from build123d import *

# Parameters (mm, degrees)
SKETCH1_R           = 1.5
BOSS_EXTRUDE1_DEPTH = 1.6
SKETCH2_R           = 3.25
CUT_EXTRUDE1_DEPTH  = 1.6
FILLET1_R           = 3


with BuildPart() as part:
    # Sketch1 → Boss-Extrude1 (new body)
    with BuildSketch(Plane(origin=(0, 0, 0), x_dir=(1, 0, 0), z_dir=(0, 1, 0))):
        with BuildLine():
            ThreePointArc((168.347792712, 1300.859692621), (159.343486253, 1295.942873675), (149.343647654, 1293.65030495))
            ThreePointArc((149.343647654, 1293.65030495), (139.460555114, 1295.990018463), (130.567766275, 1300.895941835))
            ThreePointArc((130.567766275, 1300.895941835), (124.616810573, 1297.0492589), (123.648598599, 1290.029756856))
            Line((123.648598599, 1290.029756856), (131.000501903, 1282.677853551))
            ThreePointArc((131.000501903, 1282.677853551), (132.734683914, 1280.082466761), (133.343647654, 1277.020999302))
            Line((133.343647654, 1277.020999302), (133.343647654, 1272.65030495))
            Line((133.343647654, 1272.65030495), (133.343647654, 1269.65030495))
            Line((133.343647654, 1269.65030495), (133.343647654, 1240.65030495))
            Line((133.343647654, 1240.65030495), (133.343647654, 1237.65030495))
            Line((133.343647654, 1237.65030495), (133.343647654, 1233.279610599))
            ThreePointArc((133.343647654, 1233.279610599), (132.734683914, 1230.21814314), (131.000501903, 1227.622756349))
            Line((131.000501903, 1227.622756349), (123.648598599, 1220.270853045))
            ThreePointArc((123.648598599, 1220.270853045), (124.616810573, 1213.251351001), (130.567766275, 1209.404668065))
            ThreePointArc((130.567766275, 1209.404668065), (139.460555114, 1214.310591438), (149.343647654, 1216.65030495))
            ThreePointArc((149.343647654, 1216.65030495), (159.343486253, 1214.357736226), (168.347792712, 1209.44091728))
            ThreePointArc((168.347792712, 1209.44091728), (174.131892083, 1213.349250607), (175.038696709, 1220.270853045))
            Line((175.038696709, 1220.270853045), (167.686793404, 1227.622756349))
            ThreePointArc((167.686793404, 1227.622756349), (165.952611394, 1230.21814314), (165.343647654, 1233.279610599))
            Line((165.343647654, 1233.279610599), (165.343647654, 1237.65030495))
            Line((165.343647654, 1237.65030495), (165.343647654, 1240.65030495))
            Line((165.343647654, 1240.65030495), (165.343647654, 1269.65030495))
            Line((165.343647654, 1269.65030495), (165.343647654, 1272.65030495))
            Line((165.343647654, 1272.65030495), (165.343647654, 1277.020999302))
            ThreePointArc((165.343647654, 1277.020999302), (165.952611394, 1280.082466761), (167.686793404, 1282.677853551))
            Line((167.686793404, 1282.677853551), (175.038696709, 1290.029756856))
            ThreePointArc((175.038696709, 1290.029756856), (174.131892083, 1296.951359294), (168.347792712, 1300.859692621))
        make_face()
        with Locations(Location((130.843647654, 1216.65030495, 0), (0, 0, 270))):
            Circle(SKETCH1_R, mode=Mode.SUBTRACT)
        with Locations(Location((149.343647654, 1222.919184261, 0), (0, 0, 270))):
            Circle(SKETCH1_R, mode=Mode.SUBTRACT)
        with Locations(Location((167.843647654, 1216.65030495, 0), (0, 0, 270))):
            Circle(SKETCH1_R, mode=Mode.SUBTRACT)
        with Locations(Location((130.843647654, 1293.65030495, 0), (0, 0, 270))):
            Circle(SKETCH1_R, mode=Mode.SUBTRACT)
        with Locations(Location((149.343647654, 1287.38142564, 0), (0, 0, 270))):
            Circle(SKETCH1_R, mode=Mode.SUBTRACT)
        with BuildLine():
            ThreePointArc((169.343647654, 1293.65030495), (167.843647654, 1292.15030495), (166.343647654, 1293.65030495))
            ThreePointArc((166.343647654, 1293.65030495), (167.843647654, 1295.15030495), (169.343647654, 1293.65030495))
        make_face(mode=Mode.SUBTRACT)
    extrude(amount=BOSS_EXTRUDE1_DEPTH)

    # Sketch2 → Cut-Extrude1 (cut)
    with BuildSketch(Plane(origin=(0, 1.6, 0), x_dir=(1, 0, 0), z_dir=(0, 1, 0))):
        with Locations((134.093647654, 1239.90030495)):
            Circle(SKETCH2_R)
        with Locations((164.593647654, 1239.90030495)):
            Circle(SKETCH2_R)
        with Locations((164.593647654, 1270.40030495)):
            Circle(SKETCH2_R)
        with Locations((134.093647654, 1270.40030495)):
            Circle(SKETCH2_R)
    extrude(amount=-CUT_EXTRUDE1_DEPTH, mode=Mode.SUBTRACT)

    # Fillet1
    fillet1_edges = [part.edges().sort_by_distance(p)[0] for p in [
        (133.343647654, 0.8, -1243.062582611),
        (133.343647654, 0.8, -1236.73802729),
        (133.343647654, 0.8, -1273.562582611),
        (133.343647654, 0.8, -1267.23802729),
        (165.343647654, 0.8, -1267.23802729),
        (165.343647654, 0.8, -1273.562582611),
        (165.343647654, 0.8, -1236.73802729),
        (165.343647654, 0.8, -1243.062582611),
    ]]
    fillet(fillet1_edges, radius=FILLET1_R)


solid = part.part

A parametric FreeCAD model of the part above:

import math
import FreeCAD as App
import Part
import Sketcher

V = App.Vector
Q = App.Units.Quantity


def edges_at(feature, points):
    """Names of the edges that pass closest to the given points."""
    edges = feature.Shape.Edges
    near = lambda p: min(range(len(edges)), key=lambda i: edges[i].distToShape(Part.Vertex(*p))[0])
    return sorted({f"Edge{near(p) + 1}" for p in points})

doc = App.newDocument("Part")
body = doc.addObject("PartDesign::Body", "Body")

# Sketch on XZ plane
sketch1 = body.newObject("Sketcher::SketchObject", "Sketch")
sketch1.AttachmentSupport = (doc.getObject("XZ_Plane"), [""])
sketch1.MapMode = "FlatFace"
sketch1.addGeometry([
    Part.ArcOfCircle(Part.Circle(V(146, -1331, 0), V(0, 0, 1), 37.5), math.radians(54), math.radians(85)),  # 0
    Part.ArcOfCircle(Part.Circle(V(153, -1331, 0), V(0, 0, 1), 37.5), math.radians(96), math.radians(127)),  # 1
    Part.ArcOfCircle(Part.Circle(V(131.8, -1292.5, 0), V(0, 0, 1), 8.5), math.radians(163), math.radians(262)),  # 2
    Part.LineSegment(V(123.6, -1290, 0), V(131, -1282.7, 0)),  # 3
    Part.ArcOfCircle(Part.Circle(V(125.3, -1277, 0), V(0, 0, 1), 8), math.radians(-45), math.radians(0)),  # 4
    Part.LineSegment(V(133.3, -1277, 0), V(133.3, -1233.3, 0)),  # 5
    Part.ArcOfCircle(Part.Circle(V(125.3, -1233.3, 0), V(0, 0, 1), 8), math.radians(0), math.radians(45)),  # 6
    Part.LineSegment(V(131, -1227.6, 0), V(123.6, -1220.3, 0)),  # 7
    Part.ArcOfCircle(Part.Circle(V(131.8, -1217.8, 0), V(0, 0, 1), 8.5), math.radians(98), math.radians(197)),  # 8
    Part.ArcOfCircle(Part.Circle(V(153, -1179.3, 0), V(0, 0, 1), 37.5), math.radians(-127), math.radians(-96)),  # 9
    Part.ArcOfCircle(Part.Circle(V(146, -1179.3, 0), V(0, 0, 1), 37.5), math.radians(-85), math.radians(-54)),  # 10
    Part.ArcOfCircle(Part.Circle(V(166.9, -1217.8, 0), V(0, 0, 1), 8.5), math.radians(-17), math.radians(80)),  # 11
    Part.LineSegment(V(175, -1220.3, 0), V(167.7, -1227.6, 0)),  # 12
    Part.ArcOfCircle(Part.Circle(V(173.3, -1233.3, 0), V(0, 0, 1), 8), math.radians(135), math.radians(180)),  # 13
    Part.LineSegment(V(165.3, -1233.3, 0), V(165.3, -1277, 0)),  # 14
    Part.ArcOfCircle(Part.Circle(V(173.3, -1277, 0), V(0, 0, 1), 8), math.radians(180), math.radians(225)),  # 15
    Part.LineSegment(V(167.7, -1282.7, 0), V(175, -1290, 0)),  # 16
    Part.ArcOfCircle(Part.Circle(V(166.9, -1292.5, 0), V(0, 0, 1), 8.5), math.radians(-80), math.radians(17)),  # 17
    Part.Circle(V(130.8, -1216.7, 0), V(0, 0, 1), 1.5),  # 18
    Part.Circle(V(149.3, -1222.9, 0), V(0, 0, 1), 1.5),  # 19
    Part.Circle(V(167.8, -1216.7, 0), V(0, 0, 1), 1.5),  # 20
    Part.Circle(V(130.8, -1293.7, 0), V(0, 0, 1), 1.5),  # 21
    Part.Circle(V(149.3, -1287.4, 0), V(0, 0, 1), 1.5),  # 22
    Part.Circle(V(167.8, -1293.7, 0), V(0, 0, 1), 1.5),  # 23
], False)
sketch1.addConstraint([
    Sketcher.Constraint("Coincident", 0, 2, 1, 1),
    Sketcher.Constraint("Coincident", 1, 2, 2, 2),
    Sketcher.Constraint("Coincident", 2, 1, 3, 1),
    Sketcher.Constraint("Tangent", 3, 2, 4, 1),
    Sketcher.Constraint("Tangent", 4, 2, 5, 1),
    Sketcher.Constraint("Tangent", 5, 2, 6, 1),
    Sketcher.Constraint("Tangent", 6, 2, 7, 1),
    Sketcher.Constraint("Coincident", 7, 2, 8, 2),
    Sketcher.Constraint("Coincident", 8, 1, 9, 1),
    Sketcher.Constraint("Coincident", 9, 2, 10, 1),
    Sketcher.Constraint("Coincident", 10, 2, 11, 2),
    Sketcher.Constraint("Coincident", 11, 1, 12, 1),
    Sketcher.Constraint("Tangent", 12, 2, 13, 1),
    Sketcher.Constraint("Tangent", 13, 2, 14, 1),
    Sketcher.Constraint("Tangent", 14, 2, 15, 1),
    Sketcher.Constraint("Tangent", 15, 2, 16, 1),
    Sketcher.Constraint("Coincident", 16, 2, 17, 2),
    Sketcher.Constraint("Coincident", 17, 1, 0, 1),
    Sketcher.Constraint("Vertical", 5),
    Sketcher.Constraint("Vertical", 14),
    Sketcher.Constraint("Equal", 0, 1),
    Sketcher.Constraint("Equal", 4, 6),
    Sketcher.Constraint("Equal", 2, 8),
    Sketcher.Constraint("Equal", 1, 9),
    Sketcher.Constraint("Equal", 9, 10),
    Sketcher.Constraint("Equal", 8, 11),
    Sketcher.Constraint("Equal", 6, 13),
    Sketcher.Constraint("Equal", 13, 15),
    Sketcher.Constraint("Equal", 11, 17),
    Sketcher.Constraint("Equal", 18, 19),
    Sketcher.Constraint("Equal", 19, 20),
    Sketcher.Constraint("Equal", 20, 21),
    Sketcher.Constraint("Equal", 21, 22),
    Sketcher.Constraint("Equal", 22, 23),
    Sketcher.Constraint("Perpendicular", 3, 7),
    Sketcher.Constraint("Perpendicular", 7, 12),
    Sketcher.Constraint("Perpendicular", 12, 16),
    Sketcher.Constraint("Horizontal", 8, 3, 11, 3),
    Sketcher.Constraint("Horizontal", 6, 3, 13, 3),
    Sketcher.Constraint("Horizontal", 4, 3, 15, 3),
    Sketcher.Constraint("Horizontal", 2, 3, 17, 3),
    Sketcher.Constraint("Horizontal", 18, 3, 20, 3),
    Sketcher.Constraint("Horizontal", 21, 3, 23, 3),
    Sketcher.Constraint("Horizontal", 23, 3, 0, 2),
    Sketcher.Constraint("Horizontal", 20, 3, 9, 2),
    Sketcher.Constraint("Horizontal", 7, 2, 11, 1),
    Sketcher.Constraint("Horizontal", 6, 2, 12, 2),
    Sketcher.Constraint("Horizontal", 2, 1, 16, 2),
    Sketcher.Constraint("Vertical", 2, 3, 8, 3),
    Sketcher.Constraint("Vertical", 1, 3, 9, 3),
    Sketcher.Constraint("Vertical", 0, 3, 10, 3),
    Sketcher.Constraint("Vertical", 18, 3, 21, 3),
    Sketcher.Constraint("Vertical", 19, 3, 22, 3),
    Sketcher.Constraint("Vertical", 20, 3, 23, 3),
    Sketcher.Constraint("Vertical", 22, 3, 0, 2),
    Sketcher.Constraint("Vertical", 2, 1, 7, 2),
    Sketcher.Constraint("Vertical", 1, 2, 8, 1),
    Sketcher.Constraint("Vertical", 0, 2, 9, 2),
    Sketcher.Constraint("Diameter", 18, Q("3 mm")),
    Sketcher.Constraint("Radius", 4, Q("8 mm")),
    Sketcher.Constraint("Radius", 0, Q("37.5 mm")),
    Sketcher.Constraint("Radius", 2, Q("8.5 mm")),
    Sketcher.Constraint("DistanceX", 6, 3, 13, 3, Q("48 mm")),
    Sketcher.Constraint("DistanceX", 6, 3, 19, 3, Q("24 mm")),
    Sketcher.Constraint("DistanceX", 18, 3, 20, 3, Q("37 mm")),
    Sketcher.Constraint("DistanceX", 6, 3, 18, 3, Q("5.5 mm")),
    Sketcher.Constraint("DistanceY", 4, 3, -1, 1, Q("1277.020999 mm")),
    Sketcher.Constraint("DistanceX", 12, 2, 10, 2, Q("0.660999 mm")),
    Sketcher.Constraint("DistanceY", 5, 1, 5, 2, Q("43.741389 mm")),
    Sketcher.Constraint("DistanceX", -1, 1, 2, 1, Q("123.648599 mm")),
    Sketcher.Constraint("DistanceX", -1, 1, 3, 2, Q("131.000502 mm")),
    Sketcher.Constraint("DistanceX", 9, 3, 11, 3, Q("13.939202 mm")),
    Sketcher.Constraint("DistanceX", -1, 1, 0, 3, Q("146.04247 mm")),
    Sketcher.Constraint("DistanceY", 0, 3, -1, 1, Q("1331.004719 mm")),
    Sketcher.Constraint("DistanceY", 19, 3, 8, 3, Q("5.102362 mm")),
    Sketcher.Constraint("DistanceY", 2, 3, 22, 3, Q("5.102362 mm")),
])
pad1 = body.newObject("PartDesign::Pad", "Pad")
pad1.Profile = sketch1
pad1.Length = 1.6
pad1.Reversed = True

# Sketch on XZ plane
sketch2 = body.newObject("Sketcher::SketchObject", "Sketch001")
sketch2.AttachmentSupport = (doc.getObject("XZ_Plane"), [""])
sketch2.MapMode = "FlatFace"
sketch2.AttachmentOffset = App.Placement(V(0, 0, -1.6), App.Rotation())
sketch2.addGeometry([
    Part.Circle(V(134.1, -1239.9, 0), V(0, 0, 1), 3.2),
    Part.Circle(V(164.6, -1239.9, 0), V(0, 0, 1), 3.2),
    Part.Circle(V(164.6, -1270.4, 0), V(0, 0, 1), 3.2),
    Part.Circle(V(134.1, -1270.4, 0), V(0, 0, 1), 3.2),
], False)
sketch2.addConstraint([
    Sketcher.Constraint("Equal", 0, 1),
    Sketcher.Constraint("Equal", 1, 2),
    Sketcher.Constraint("Equal", 2, 3),
    Sketcher.Constraint("Horizontal", 0, 3, 1, 3),
    Sketcher.Constraint("Horizontal", 2, 3, 3, 3),
    Sketcher.Constraint("Vertical", 1, 3, 2, 3),
    Sketcher.Constraint("Vertical", 0, 3, 3, 3),
    Sketcher.Constraint("Diameter", 0, Q("6.5 mm")),
    Sketcher.Constraint("DistanceX", 0, 3, 1, 3, Q("30.5 mm")),
    Sketcher.Constraint("DistanceY", 2, 3, 1, 3, Q("30.5 mm")),
    Sketcher.Constraint("DistanceX", -1, 1, 0, 3, Q("134.093648 mm")),
    Sketcher.Constraint("DistanceY", 0, 3, -1, 1, Q("1239.900305 mm")),
])
pocket1 = body.newObject("PartDesign::Pocket", "Pocket")
pocket1.Profile = sketch2
pocket1.Length = 1.6
pocket1.Reversed = True
doc.recompute()

fillet = body.newObject("PartDesign::Fillet", "Fillet")
fillet.Base = (pocket1, edges_at(pocket1, [
    (133.344, 0.8, -1243.063),
    (133.344, 0.8, -1236.738),
    (133.344, 0.8, -1273.563),
    (133.344, 0.8, -1267.238),
    (165.344, 0.8, -1267.238),
    (165.344, 0.8, -1273.563),
    (165.344, 0.8, -1236.738),
    (165.344, 0.8, -1243.063),
]))
fillet.Radius = 3

doc.recompute()
